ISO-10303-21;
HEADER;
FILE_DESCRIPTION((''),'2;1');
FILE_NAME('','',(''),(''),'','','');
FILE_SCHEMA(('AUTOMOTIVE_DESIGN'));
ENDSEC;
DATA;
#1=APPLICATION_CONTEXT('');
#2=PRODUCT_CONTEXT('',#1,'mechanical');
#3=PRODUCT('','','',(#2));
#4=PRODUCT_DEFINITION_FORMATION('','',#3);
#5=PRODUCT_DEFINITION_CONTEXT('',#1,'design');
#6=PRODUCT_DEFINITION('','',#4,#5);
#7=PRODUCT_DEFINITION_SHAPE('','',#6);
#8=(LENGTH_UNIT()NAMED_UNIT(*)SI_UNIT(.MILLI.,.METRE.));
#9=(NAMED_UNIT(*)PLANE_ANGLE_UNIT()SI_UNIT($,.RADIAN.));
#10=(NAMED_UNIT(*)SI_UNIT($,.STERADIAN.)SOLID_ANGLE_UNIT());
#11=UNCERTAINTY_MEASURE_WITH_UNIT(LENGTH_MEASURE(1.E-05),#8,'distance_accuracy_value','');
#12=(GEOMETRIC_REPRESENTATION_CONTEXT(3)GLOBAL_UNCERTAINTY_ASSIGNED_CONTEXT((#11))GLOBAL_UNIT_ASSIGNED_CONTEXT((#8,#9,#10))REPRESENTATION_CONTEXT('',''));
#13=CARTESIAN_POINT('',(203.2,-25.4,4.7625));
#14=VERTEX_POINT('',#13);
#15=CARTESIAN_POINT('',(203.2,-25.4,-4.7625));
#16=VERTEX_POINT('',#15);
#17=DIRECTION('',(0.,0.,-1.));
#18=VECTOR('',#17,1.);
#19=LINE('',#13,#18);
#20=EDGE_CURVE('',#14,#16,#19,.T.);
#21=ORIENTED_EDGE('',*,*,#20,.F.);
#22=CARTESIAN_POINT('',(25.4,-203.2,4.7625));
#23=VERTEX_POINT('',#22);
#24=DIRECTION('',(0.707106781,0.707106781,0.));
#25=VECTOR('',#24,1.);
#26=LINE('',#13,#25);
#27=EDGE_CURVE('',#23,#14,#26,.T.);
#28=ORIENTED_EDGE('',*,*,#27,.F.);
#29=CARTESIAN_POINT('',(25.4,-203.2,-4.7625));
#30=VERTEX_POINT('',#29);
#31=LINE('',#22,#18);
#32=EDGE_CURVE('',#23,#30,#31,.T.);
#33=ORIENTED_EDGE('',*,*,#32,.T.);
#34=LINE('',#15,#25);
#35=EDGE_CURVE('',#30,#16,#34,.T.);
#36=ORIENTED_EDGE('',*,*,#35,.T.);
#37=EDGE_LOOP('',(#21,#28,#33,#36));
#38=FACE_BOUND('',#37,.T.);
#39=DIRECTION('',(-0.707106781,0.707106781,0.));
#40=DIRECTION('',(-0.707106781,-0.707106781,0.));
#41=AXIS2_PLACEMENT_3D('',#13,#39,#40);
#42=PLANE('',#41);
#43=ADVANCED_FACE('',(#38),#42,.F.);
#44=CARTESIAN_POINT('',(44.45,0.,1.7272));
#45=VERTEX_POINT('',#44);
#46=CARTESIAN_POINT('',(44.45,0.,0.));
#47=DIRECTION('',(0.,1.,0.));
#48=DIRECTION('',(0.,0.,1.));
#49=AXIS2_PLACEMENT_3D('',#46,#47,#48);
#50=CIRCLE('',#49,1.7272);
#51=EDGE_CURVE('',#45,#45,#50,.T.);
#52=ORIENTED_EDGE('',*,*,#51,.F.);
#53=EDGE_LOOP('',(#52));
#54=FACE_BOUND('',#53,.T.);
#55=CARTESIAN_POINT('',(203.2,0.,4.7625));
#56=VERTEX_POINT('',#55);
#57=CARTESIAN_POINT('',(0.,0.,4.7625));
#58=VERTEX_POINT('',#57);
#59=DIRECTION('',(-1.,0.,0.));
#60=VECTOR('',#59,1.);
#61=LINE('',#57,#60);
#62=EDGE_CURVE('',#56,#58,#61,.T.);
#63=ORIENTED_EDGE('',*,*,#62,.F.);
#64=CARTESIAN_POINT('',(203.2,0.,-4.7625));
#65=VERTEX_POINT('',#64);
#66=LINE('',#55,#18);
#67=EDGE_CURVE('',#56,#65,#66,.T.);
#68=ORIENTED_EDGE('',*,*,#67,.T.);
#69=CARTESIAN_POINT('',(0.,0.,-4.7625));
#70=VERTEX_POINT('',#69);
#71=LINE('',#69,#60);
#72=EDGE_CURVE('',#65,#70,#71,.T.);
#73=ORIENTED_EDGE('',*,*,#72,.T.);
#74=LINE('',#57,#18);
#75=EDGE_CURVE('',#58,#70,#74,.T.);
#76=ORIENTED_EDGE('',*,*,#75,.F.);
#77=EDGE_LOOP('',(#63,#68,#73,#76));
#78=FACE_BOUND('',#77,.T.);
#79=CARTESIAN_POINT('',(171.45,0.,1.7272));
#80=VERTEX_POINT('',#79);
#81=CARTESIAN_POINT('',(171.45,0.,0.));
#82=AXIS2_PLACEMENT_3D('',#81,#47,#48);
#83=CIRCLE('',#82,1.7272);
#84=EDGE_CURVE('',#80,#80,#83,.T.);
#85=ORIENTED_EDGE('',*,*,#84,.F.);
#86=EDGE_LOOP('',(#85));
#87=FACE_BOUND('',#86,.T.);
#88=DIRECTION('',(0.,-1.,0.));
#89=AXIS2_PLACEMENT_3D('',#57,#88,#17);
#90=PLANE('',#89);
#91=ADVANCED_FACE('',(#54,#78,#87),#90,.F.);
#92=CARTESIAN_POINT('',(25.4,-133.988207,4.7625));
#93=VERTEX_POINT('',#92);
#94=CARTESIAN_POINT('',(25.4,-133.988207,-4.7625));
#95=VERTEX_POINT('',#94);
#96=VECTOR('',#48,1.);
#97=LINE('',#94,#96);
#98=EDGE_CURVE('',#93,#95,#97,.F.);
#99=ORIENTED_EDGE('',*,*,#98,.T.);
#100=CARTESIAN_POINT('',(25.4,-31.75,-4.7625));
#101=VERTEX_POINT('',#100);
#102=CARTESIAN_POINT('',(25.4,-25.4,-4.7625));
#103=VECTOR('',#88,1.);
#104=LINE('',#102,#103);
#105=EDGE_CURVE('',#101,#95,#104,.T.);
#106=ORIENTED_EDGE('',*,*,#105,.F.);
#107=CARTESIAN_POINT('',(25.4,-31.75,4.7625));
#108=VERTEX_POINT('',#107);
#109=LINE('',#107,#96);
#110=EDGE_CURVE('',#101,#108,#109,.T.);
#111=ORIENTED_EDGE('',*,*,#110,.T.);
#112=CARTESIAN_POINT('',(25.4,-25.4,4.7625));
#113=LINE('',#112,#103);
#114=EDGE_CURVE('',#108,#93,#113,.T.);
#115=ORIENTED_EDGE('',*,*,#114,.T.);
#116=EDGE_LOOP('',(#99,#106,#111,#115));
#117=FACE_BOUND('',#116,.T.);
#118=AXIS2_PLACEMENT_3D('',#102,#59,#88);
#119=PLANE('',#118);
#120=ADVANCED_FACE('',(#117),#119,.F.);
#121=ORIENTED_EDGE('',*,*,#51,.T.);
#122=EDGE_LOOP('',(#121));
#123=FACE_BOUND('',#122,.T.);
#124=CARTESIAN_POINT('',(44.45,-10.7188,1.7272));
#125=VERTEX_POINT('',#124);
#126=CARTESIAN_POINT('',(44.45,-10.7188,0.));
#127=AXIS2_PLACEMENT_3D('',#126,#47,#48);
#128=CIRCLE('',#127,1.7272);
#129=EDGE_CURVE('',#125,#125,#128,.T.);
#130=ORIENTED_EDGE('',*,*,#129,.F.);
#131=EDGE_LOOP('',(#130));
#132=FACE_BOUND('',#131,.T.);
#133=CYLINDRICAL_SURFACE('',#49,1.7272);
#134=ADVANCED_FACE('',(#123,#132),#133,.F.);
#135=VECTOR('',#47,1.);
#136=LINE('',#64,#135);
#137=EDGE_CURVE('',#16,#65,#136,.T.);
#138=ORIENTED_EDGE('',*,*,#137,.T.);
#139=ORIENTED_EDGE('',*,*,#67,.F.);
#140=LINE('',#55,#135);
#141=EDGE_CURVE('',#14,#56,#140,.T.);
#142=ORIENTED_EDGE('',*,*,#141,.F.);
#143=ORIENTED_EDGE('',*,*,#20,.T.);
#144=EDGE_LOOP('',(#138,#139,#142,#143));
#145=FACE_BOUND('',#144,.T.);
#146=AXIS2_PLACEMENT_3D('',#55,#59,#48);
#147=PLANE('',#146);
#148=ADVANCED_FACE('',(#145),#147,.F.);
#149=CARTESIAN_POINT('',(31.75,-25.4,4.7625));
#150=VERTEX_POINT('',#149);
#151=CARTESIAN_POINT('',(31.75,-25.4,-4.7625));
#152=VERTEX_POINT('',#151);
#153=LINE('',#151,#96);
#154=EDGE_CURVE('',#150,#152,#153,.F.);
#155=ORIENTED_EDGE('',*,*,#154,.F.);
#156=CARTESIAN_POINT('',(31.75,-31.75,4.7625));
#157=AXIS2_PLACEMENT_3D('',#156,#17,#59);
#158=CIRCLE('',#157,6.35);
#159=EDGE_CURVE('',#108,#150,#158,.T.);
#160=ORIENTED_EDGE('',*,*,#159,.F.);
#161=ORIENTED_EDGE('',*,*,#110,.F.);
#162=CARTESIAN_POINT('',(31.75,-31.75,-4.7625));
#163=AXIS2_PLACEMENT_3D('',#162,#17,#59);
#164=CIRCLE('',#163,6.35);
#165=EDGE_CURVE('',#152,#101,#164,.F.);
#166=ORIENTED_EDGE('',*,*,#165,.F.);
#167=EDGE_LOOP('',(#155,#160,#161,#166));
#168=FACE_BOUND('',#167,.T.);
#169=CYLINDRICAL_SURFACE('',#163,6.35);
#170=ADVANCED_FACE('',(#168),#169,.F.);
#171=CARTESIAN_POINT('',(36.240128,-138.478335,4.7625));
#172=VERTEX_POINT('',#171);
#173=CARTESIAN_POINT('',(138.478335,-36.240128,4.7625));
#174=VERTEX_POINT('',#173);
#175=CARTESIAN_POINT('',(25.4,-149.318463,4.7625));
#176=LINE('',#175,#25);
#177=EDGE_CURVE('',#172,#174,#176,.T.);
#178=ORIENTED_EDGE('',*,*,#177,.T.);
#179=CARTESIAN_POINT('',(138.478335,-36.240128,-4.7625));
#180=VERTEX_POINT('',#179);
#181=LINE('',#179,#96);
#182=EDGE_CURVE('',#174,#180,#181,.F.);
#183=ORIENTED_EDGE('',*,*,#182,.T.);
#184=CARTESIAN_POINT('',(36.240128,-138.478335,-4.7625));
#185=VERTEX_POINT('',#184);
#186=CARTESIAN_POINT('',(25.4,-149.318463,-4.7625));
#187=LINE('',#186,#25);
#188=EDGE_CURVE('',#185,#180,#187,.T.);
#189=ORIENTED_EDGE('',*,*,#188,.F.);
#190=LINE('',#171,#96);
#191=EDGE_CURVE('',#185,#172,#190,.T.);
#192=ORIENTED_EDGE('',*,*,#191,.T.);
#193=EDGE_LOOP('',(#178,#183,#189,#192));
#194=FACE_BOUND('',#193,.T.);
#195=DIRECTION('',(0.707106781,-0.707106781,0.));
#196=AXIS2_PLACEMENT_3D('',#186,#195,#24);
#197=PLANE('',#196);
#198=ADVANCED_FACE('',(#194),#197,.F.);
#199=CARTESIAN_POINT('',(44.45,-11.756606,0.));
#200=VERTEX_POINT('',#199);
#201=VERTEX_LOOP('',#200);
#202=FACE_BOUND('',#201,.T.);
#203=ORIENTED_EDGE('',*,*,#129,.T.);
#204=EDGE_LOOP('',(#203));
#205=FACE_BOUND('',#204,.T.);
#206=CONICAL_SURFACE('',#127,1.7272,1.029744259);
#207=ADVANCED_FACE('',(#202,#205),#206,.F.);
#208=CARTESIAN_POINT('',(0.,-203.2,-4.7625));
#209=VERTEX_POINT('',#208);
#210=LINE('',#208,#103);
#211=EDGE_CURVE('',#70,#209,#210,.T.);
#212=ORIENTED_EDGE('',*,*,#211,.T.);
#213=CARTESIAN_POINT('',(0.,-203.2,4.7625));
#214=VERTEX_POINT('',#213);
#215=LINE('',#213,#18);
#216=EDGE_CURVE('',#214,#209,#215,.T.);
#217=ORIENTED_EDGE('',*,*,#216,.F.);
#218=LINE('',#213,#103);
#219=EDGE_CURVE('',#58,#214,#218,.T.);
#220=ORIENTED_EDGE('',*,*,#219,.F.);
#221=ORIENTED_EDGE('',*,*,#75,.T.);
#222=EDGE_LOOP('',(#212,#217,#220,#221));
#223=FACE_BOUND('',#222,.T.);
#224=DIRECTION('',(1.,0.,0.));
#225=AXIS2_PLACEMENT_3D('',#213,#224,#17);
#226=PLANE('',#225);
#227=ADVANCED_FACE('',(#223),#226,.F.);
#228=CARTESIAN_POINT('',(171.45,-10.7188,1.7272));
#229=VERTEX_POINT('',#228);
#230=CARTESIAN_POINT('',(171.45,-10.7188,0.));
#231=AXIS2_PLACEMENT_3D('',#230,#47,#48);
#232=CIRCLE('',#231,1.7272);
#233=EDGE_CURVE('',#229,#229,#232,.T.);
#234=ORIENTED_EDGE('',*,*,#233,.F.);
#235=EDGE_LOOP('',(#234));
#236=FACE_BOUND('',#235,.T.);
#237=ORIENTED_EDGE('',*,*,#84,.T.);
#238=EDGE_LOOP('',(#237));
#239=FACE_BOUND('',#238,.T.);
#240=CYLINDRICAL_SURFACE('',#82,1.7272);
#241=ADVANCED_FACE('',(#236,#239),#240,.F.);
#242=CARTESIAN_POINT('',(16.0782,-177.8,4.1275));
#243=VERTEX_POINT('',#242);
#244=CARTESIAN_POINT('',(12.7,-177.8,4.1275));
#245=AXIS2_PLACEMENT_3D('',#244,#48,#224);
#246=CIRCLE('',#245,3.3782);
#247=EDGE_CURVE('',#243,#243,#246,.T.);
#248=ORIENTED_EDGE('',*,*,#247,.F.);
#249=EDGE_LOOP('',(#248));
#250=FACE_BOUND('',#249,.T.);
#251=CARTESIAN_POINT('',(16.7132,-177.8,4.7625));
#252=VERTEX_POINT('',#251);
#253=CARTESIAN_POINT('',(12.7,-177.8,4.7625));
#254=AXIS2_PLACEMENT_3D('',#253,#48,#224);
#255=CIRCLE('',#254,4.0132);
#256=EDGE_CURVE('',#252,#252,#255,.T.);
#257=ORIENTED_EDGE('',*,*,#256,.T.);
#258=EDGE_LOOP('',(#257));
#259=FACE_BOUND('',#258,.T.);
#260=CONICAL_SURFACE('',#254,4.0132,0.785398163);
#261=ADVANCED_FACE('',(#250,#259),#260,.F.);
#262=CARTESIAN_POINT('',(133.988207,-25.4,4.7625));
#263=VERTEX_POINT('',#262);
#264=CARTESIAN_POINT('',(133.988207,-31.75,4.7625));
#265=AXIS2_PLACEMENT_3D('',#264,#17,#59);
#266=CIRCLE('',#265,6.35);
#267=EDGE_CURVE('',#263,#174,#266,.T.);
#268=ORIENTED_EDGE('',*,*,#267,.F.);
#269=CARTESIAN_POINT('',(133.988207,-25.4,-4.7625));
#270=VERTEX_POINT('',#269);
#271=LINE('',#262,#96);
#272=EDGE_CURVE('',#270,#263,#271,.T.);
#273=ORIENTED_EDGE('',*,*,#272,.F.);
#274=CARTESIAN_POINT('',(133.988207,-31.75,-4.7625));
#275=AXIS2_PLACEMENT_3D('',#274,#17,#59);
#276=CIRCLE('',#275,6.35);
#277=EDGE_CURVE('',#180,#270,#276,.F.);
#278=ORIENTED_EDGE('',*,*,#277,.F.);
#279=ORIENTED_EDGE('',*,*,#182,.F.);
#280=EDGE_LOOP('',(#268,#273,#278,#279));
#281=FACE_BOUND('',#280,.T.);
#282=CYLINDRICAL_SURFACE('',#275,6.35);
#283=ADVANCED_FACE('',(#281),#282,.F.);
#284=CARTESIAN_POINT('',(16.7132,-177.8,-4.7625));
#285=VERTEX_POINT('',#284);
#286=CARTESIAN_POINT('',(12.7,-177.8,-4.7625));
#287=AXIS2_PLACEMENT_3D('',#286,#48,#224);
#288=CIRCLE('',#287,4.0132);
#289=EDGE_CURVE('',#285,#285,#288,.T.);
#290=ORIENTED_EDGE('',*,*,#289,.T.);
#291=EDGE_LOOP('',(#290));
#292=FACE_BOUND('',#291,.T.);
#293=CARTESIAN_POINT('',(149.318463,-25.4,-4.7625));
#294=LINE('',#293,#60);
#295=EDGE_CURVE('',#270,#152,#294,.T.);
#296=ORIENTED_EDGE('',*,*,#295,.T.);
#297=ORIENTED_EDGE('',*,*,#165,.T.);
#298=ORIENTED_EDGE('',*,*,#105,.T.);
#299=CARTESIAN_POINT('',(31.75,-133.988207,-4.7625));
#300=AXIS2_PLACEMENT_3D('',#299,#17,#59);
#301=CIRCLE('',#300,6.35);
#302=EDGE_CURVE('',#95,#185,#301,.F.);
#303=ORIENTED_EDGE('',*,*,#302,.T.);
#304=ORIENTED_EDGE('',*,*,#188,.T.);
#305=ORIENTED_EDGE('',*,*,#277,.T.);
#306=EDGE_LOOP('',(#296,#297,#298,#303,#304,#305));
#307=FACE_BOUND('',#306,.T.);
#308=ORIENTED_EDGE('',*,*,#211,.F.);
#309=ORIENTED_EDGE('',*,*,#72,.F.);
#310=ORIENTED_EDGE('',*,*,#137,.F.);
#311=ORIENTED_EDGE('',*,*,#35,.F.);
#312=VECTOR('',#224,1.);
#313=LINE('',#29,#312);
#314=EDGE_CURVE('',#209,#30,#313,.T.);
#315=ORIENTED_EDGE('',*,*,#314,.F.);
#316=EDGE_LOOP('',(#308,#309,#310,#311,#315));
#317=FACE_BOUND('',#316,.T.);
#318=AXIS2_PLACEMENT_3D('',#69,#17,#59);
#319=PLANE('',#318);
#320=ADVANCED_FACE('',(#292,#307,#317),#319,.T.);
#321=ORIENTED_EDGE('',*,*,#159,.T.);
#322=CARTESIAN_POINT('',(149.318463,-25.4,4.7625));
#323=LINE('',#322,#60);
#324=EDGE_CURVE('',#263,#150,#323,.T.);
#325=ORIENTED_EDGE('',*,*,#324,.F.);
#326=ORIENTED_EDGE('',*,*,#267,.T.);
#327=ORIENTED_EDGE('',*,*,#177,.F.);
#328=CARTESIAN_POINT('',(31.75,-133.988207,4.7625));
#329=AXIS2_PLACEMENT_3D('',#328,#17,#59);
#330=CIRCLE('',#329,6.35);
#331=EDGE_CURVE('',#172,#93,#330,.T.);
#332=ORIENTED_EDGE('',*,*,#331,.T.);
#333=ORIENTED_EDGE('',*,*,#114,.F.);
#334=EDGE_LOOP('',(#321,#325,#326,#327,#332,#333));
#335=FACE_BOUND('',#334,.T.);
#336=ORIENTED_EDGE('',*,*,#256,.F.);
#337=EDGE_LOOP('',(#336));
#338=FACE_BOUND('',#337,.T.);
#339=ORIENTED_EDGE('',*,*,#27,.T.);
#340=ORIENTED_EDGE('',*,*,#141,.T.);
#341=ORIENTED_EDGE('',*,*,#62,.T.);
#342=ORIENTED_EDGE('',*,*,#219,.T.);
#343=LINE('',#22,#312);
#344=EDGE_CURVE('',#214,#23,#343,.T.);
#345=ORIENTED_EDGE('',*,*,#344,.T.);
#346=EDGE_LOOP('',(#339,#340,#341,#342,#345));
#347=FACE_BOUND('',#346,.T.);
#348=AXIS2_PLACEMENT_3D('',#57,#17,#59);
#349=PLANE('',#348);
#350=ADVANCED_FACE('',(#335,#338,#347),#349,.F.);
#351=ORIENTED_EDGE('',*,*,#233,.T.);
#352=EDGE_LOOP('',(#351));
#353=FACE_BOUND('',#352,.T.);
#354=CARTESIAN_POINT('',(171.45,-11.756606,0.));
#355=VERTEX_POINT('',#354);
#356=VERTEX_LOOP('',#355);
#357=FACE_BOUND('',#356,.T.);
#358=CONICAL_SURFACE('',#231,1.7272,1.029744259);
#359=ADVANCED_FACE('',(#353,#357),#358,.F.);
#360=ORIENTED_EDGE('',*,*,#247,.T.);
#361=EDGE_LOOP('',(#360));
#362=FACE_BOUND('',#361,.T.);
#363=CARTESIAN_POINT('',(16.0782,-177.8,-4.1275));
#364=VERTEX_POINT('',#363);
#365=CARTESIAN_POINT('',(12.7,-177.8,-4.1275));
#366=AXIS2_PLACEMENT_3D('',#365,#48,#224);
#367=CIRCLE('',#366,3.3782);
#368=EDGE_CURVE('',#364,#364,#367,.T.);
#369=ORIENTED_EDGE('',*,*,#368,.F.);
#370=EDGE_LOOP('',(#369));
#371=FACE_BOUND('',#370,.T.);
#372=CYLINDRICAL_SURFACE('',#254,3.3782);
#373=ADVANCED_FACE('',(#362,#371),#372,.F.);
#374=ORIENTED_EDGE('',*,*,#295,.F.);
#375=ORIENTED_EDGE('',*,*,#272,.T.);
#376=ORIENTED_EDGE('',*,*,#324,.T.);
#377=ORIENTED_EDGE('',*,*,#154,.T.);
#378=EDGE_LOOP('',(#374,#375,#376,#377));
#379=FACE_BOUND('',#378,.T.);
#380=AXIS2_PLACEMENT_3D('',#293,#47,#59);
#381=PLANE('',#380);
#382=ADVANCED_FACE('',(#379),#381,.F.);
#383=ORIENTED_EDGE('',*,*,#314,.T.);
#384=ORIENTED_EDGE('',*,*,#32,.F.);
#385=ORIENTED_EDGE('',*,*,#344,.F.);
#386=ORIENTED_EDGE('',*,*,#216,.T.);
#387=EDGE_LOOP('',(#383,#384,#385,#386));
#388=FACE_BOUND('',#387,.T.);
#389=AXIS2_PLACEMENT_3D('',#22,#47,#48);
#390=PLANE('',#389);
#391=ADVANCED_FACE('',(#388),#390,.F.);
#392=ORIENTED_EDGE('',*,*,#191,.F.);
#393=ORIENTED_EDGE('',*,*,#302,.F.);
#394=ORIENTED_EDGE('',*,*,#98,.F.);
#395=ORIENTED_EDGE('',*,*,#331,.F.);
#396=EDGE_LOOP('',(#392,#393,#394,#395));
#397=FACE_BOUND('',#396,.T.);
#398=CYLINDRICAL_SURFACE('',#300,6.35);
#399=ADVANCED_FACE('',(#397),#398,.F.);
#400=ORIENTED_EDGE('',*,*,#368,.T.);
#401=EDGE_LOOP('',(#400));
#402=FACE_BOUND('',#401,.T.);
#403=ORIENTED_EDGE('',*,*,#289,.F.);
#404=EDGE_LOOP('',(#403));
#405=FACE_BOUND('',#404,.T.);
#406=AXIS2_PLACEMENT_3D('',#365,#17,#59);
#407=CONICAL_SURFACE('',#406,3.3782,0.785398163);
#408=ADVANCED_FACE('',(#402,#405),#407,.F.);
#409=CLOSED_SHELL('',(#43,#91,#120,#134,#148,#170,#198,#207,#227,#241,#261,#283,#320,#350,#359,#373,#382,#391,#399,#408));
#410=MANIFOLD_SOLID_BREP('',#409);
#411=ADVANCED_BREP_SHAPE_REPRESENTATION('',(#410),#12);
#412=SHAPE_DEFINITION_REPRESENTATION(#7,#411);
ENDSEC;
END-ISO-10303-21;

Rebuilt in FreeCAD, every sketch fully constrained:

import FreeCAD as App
import Part
import Sketcher
Q = App.Units.Quantity


def edges_at(feature, points):
    """Names of the edges that pass closest to the given points."""
    edges = feature.Shape.Edges
    near = lambda p: min(range(len(edges)), key=lambda i: edges[i].distToShape(Part.Vertex(*p))[0])
    return sorted({f"Edge{near(p) + 1}" for p in points})


def add_polygon(sketch, points):
    """Adds a closed chain of lines whose ends are joined by coincident constraints."""
    first, n = sketch.GeometryCount, len(points)
    for a, b in zip(points, points[1:] + points[:1]):
        sketch.addGeometry(Part.LineSegment(App.Vector(*a, 0), App.Vector(*b, 0)), False)
    for i in range(n):
        sketch.addConstraint(Sketcher.Constraint("Coincident", first + i, 2, first + (i + 1) % n, 1))

doc = App.newDocument("Part")
body = doc.addObject("PartDesign::Body", "Body")

# Sketch on XY plane
sketch1 = doc.addObject("Sketcher::SketchObject", "Sketch")
body.addObject(sketch1)
sketch1.AttachmentSupport = (doc.XY_Plane, [""])
sketch1.MapMode = "FlatFace"
add_polygon(sketch1, [(0, 0), (0, -203.2), (25.4, -203.2), (203.2, -25.4), (203.2, 0)])  # lines 0-4
sketch1.addConstraint(Sketcher.Constraint("Vertical", 0))
sketch1.addConstraint(Sketcher.Constraint("Horizontal", 1))
sketch1.addConstraint(Sketcher.Constraint("Vertical", 3))
sketch1.addConstraint(Sketcher.Constraint("Horizontal", 4))
sketch1.addConstraint(Sketcher.Constraint("Coincident", 4, 2, -1, 1))
sketch1.addConstraint(Sketcher.Constraint("Equal", 4, 0))
sketch1.addConstraint(Sketcher.Constraint("Equal", 1, 3))
sketch1.addConstraint(Sketcher.Constraint("DistanceX", 1, 1, 1, 2, Q("1 in")))
sketch1.addConstraint(Sketcher.Constraint("DistanceX", 4, 2, 4, 1, Q("8 in")))
pad1 = doc.addObject("PartDesign::Pad", "Pad")
body.addObject(pad1)
pad1.Profile = sketch1
pad1.Length = Q("0.375 in")
pad1.Midplane = True

# Sketch on XZ plane
sketch2 = doc.addObject("Sketcher::SketchObject", "Sketch001")
body.addObject(sketch2)
sketch2.AttachmentSupport = (doc.XZ_Plane, [""])
sketch2.MapMode = "FlatFace"
sketch2.addGeometry(Part.Circle(App.Vector(44.45, 0, 0), App.Vector(0, 0, 1), 1.7272), False)
sketch2.addGeometry(Part.Circle(App.Vector(171.45, 0, 0), App.Vector(0, 0, 1), 1.7272), False)
sketch2.addConstraint(Sketcher.Constraint("Equal", 0, 1))
sketch2.addConstraint(Sketcher.Constraint("PointOnObject", 0, 3, -1))
sketch2.addConstraint(Sketcher.Constraint("PointOnObject", 1, 3, -1))
sketch2.addConstraint(Sketcher.Constraint("Diameter", 0, Q("0.136 in")))
sketch2.addConstraint(Sketcher.Constraint("DistanceX", 0, 3, 1, 3, Q("5 in")))
sketch2.addConstraint(Sketcher.Constraint("DistanceX", -1, 1, 0, 3, Q("1.75 in")))
doc.recompute()
hole = doc.addObject("PartDesign::Hole", "Hole")
body.addObject(hole)
hole.Profile = sketch2
hole.ThreadType = "None"
hole.Diameter = Q("0.136 in")
hole.DepthType = "Dimension"
hole.Depth = Q("0.422 in")
hole.DrillPoint = "Angled"
hole.DrillPointAngle = 118
hole.Reversed = True

# Sketch on YZ plane
sketch3 = doc.addObject("Sketcher::SketchObject", "Sketch002")
body.addObject(sketch3)
sketch3.AttachmentSupport = (doc.YZ_Plane, [""])
sketch3.MapMode = "FlatFace"
sketch3.AttachmentOffset = App.Placement(App.Vector(0, 0, 0.5 * 25.4), App.Rotation())
add_polygon(sketch3, [(-177.8, -4.7625), (-177.8, 4.7625), (-181.8132, 4.7625), (-181.1782, 4.1275), (-181.1782, -4.1275), (-181.8132, -4.7625)])  # lines 0-5
sketch3.addGeometry(Part.LineSegment(App.Vector(-177.8, 4.7625, 0), App.Vector(-177.8, -4.7625, 0)), True)  # axis
sketch3.addConstraint(Sketcher.Constraint("Vertical", 0))
sketch3.addConstraint(Sketcher.Constraint("Horizontal", 1))
sketch3.addConstraint(Sketcher.Constraint("Vertical", 3))
sketch3.addConstraint(Sketcher.Constraint("Horizontal", 5))
sketch3.addConstraint(Sketcher.Constraint("Vertical", 6))
sketch3.addConstraint(Sketcher.Constraint("Coincident", 6, 1, 0, 2))
sketch3.addConstraint(Sketcher.Constraint("Symmetric", 1, 2, 4, 2, -1))
sketch3.addConstraint(Sketcher.Constraint("Perpendicular", 2, 4))
sketch3.addConstraint(Sketcher.Constraint("Horizontal", 4, 2, 6, 2))
sketch3.addConstraint(Sketcher.Constraint("Equal", 2, 4))
sketch3.addConstraint(Sketcher.Constraint("DistanceX", 0, 2, -1, 1, Q("7 in")))
sketch3.addConstraint(Sketcher.Constraint("DistanceX", 1, 2, 1, 1, Q("0.158 in")))
sketch3.addConstraint(Sketcher.Constraint("DistanceY", 0, 1, 0, 2, Q("0.375 in")))
sketch3.addConstraint(Sketcher.Constraint("DistanceY", 3, 2, 3, 1, Q("0.325 in")))
groove = doc.addObject("PartDesign::Groove", "Groove")
body.addObject(groove)
groove.Profile = sketch3
groove.ReferenceAxis = (sketch3, ["Axis0"])
groove.Angle = 360

# Sketch on XY plane
sketch4 = doc.addObject("Sketcher::SketchObject", "Sketch003")
body.addObject(sketch4)
sketch4.AttachmentSupport = (doc.XY_Plane, [""])
sketch4.MapMode = "FlatFace"
sketch4.AttachmentOffset = App.Placement(App.Vector(0, 0, 0.1875 * 25.4), App.Rotation())
add_polygon(sketch4, [(25.4, -25.4), (25.4, -149.318463), (149.318463, -25.4)])  # lines 0-2
sketch4.addConstraint(Sketcher.Constraint("Vertical", 0))
sketch4.addConstraint(Sketcher.Constraint("Horizontal", 2))
sketch4.addConstraint(Sketcher.Constraint("Equal", 2, 0))
sketch4.addConstraint(Sketcher.Constraint("DistanceX", -1, 1, 0, 2, Q("1 in")))
sketch4.addConstraint(Sketcher.Constraint("DistanceY", 1, 2, -1, 1, Q("1 in")))
sketch4.addConstraint(Sketcher.Constraint("Distance", 1, Q("175.247171 mm")))
pocket1 = doc.addObject("PartDesign::Pocket", "Pocket")
body.addObject(pocket1)
pocket1.Profile = sketch4
pocket1.Type = "ThroughAll"
doc.recompute()

fillet = doc.addObject("PartDesign::Fillet", "Fillet")
body.addObject(fillet)
fillet.Base = (pocket1, edges_at(pocket1, [(25.4, -25.4, 0), (149.318, -25.4, 0), (25.4, -149.318, 0)]))
fillet.Radius = Q("0.25 in")

doc.recompute()
